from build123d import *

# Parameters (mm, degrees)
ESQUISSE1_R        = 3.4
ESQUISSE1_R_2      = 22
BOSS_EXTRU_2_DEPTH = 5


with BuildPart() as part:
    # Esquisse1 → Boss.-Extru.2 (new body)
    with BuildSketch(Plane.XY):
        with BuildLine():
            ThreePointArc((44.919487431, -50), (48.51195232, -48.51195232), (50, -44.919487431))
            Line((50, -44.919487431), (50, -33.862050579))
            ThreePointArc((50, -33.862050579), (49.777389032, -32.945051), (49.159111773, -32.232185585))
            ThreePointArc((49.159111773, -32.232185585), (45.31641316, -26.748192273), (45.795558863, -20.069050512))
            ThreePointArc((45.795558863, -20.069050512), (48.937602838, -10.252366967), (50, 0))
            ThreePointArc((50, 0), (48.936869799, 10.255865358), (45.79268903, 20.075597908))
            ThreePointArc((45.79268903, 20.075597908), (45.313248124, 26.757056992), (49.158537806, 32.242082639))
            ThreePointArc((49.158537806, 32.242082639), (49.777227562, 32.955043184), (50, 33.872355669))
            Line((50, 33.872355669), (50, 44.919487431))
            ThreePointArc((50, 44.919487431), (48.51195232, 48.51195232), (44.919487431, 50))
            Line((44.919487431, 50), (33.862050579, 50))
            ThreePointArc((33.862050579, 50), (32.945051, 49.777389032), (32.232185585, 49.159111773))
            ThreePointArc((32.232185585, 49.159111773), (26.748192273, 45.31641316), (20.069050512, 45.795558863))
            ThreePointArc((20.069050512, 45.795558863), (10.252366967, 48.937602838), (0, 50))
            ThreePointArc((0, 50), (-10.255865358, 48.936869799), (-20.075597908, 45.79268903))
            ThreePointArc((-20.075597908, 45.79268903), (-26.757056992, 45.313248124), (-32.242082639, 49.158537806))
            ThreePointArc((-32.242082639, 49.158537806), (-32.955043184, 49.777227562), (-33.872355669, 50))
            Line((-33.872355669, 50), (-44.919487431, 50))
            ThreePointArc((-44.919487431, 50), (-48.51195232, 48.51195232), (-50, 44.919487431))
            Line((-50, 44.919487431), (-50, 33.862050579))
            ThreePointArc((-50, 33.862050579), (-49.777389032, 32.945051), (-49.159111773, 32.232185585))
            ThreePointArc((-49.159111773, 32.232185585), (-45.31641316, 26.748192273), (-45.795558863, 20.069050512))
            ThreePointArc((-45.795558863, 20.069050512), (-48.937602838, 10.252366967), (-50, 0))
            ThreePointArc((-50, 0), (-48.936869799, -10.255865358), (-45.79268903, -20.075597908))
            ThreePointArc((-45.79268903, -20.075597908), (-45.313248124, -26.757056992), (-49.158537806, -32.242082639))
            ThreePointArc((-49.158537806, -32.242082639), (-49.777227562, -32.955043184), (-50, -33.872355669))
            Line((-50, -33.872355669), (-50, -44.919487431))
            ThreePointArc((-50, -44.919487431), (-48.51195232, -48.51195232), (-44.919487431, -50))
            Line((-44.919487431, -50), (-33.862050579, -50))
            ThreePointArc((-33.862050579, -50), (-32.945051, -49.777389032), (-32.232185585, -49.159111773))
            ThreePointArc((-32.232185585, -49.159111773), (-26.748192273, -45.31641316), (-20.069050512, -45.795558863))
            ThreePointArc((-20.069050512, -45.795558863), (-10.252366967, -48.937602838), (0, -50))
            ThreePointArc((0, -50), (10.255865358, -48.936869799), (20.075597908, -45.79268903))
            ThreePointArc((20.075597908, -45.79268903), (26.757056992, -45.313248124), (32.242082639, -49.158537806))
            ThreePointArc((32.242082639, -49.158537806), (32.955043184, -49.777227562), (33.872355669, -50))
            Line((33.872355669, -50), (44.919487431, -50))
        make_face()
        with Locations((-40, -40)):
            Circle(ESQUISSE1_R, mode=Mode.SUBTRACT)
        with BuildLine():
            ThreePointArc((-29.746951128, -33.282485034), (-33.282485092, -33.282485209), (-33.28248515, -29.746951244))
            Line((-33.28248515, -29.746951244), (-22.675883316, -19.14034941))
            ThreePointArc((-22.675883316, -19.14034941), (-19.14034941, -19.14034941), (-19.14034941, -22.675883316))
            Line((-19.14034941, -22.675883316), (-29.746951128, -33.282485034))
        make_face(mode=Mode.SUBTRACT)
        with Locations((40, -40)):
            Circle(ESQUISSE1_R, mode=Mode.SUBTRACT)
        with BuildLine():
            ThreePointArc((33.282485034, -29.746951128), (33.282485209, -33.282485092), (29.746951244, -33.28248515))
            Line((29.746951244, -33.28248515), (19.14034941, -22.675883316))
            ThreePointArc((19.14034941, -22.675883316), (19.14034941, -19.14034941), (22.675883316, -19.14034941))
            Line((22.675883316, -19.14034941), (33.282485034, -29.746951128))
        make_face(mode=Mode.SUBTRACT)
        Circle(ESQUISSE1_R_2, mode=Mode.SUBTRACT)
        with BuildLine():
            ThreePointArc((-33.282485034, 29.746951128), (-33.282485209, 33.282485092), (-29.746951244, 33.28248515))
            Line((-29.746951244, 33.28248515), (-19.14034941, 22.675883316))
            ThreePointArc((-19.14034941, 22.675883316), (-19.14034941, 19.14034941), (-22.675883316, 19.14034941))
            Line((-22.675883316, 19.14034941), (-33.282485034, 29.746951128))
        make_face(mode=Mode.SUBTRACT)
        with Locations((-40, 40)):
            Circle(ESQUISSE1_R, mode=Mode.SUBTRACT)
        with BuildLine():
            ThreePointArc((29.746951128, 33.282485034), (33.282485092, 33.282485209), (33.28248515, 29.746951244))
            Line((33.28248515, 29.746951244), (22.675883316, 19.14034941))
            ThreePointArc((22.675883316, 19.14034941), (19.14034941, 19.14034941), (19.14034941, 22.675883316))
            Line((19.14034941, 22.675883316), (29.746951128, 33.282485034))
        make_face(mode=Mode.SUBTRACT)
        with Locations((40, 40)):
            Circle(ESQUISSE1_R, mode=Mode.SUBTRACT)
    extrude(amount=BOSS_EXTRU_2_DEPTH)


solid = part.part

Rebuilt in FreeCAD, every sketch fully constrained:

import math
import FreeCAD as App
import Part
import Sketcher

doc = App.newDocument("Part")
body = doc.addObject("PartDesign::Body", "Body")

sketch1 = body.newObject("Sketcher::SketchObject", "Sketch")
sketch1.AttachmentSupport = (doc.getObject("XY_Plane"), [""])
sketch1.MapMode = "FlatFace"
sketch1.addGeometry([
    Part.ArcOfCircle(Part.Circle(App.Vector(44.9, -44.9, 0), App.Vector(0, 0, 1), 5.1), math.radians(-90), math.radians(0)),
    Part.LineSegment(App.Vector(50, -44.9, 0), App.Vector(50, -33.9, 0)),
    Part.ArcOfCircle(Part.Circle(App.Vector(48, -33.9, 0), App.Vector(0, 0, 1), 2), math.radians(0), math.radians(55)),
    Part.ArcOfCircle(Part.Circle(App.Vector(55, -24.1, 0), App.Vector(0, 0, 1), 10), math.radians(156), math.radians(235)),
    Part.ArcOfCircle(Part.Circle(App.Vector(0, 0, 0), App.Vector(0, 0, 1), 50), math.radians(-24), math.radians(0)),
    Part.ArcOfCircle(Part.Circle(App.Vector(0, 0, 0), App.Vector(0, 0, 1), 50), math.radians(0), math.radians(24)),
    Part.ArcOfCircle(Part.Circle(App.Vector(55, 24.1, 0), App.Vector(0, 0, 1), 10), math.radians(125), math.radians(204)),
    Part.ArcOfCircle(Part.Circle(App.Vector(48, 33.9, 0), App.Vector(0, 0, 1), 2), math.radians(-55), math.radians(0)),
    Part.LineSegment(App.Vector(50, 33.9, 0), App.Vector(50, 44.9, 0)),
    Part.ArcOfCircle(Part.Circle(App.Vector(44.9, 44.9, 0), App.Vector(0, 0, 1), 5.1), math.radians(0), math.radians(90)),
    Part.LineSegment(App.Vector(44.9, 50, 0), App.Vector(33.9, 50, 0)),
    Part.ArcOfCircle(Part.Circle(App.Vector(33.9, 48, 0), App.Vector(0, 0, 1), 2), math.radians(90), math.radians(145)),
    Part.ArcOfCircle(Part.Circle(App.Vector(24.1, 55, 0), App.Vector(0, 0, 1), 10), math.radians(-114), math.radians(-35)),
    Part.ArcOfCircle(Part.Circle(App.Vector(0, 0, 0), App.Vector(0, 0, 1), 50), math.radians(66), math.radians(90)),
    Part.ArcOfCircle(Part.Circle(App.Vector(0, 0, 0), App.Vector(0, 0, 1), 50), math.radians(90), math.radians(114)),
    Part.ArcOfCircle(Part.Circle(App.Vector(-24.1, 55, 0), App.Vector(0, 0, 1), 10), math.radians(-145), math.radians(-66)),
    Part.ArcOfCircle(Part.Circle(App.Vector(-33.9, 48, 0), App.Vector(0, 0, 1), 2), math.radians(35), math.radians(90)),
    Part.LineSegment(App.Vector(-33.9, 50, 0), App.Vector(-44.9, 50, 0)),
    Part.ArcOfCircle(Part.Circle(App.Vector(-44.9, 44.9, 0), App.Vector(0, 0, 1), 5.1), math.radians(90), math.radians(180)),
    Part.LineSegment(App.Vector(-50, 44.9, 0), App.Vector(-50, 33.9, 0)),
    Part.ArcOfCircle(Part.Circle(App.Vector(-48, 33.9, 0), App.Vector(0, 0, 1), 2), math.radians(-180), math.radians(-125)),
    Part.ArcOfCircle(Part.Circle(App.Vector(-55, 24.1, 0), App.Vector(0, 0, 1), 10), math.radians(-24), math.radians(55)),
    Part.ArcOfCircle(Part.Circle(App.Vector(0, 0, 0), App.Vector(0, 0, 1), 50), math.radians(156), math.radians(180)),
    Part.ArcOfCircle(Part.Circle(App.Vector(0, 0, 0), App.Vector(0, 0, 1), 50), math.radians(-180), math.radians(-156)),
    Part.ArcOfCircle(Part.Circle(App.Vector(-55, -24.1, 0), App.Vector(0, 0, 1), 10), math.radians(-55), math.radians(24)),
    Part.ArcOfCircle(Part.Circle(App.Vector(-48, -33.9, 0), App.Vector(0, 0, 1), 2), math.radians(125), math.radians(180)),
    Part.LineSegment(App.Vector(-50, -33.9, 0), App.Vector(-50, -44.9, 0)),
    Part.ArcOfCircle(Part.Circle(App.Vector(-44.9, -44.9, 0), App.Vector(0, 0, 1), 5.1), math.radians(-180), math.radians(-90)),
    Part.LineSegment(App.Vector(-44.9, -50, 0), App.Vector(-33.9, -50, 0)),
    Part.ArcOfCircle(Part.Circle(App.Vector(-33.9, -48, 0), App.Vector(0, 0, 1), 2), math.radians(-90), math.radians(-35)),
    Part.ArcOfCircle(Part.Circle(App.Vector(-24.1, -55, 0), App.Vector(0, 0, 1), 10), math.radians(66), math.radians(145)),
    Part.ArcOfCircle(Part.Circle(App.Vector(0, 0, 0), App.Vector(0, 0, 1), 50), math.radians(-114), math.radians(-90)),
    Part.ArcOfCircle(Part.Circle(App.Vector(0, 0, 0), App.Vector(0, 0, 1), 50), math.radians(-90), math.radians(-66)),
    Part.ArcOfCircle(Part.Circle(App.Vector(24.1, -55, 0), App.Vector(0, 0, 1), 10), math.radians(35), math.radians(114)),
    Part.ArcOfCircle(Part.Circle(App.Vector(33.9, -48, 0), App.Vector(0, 0, 1), 2), math.radians(-145), math.radians(-90)),
    Part.LineSegment(App.Vector(33.9, -50, 0), App.Vector(44.9, -50, 0)),
    Part.Circle(App.Vector(-40, -40, 0), App.Vector(0, 0, 1), 3.4),
    Part.LineSegment(App.Vector(-19.1, -22.7, 0), App.Vector(-29.7, -33.3, 0)),
    Part.ArcOfCircle(Part.Circle(App.Vector(-31.5, -31.5, 0), App.Vector(0, 0, 1), 2.5), math.radians(135), math.radians(315)),
    Part.LineSegment(App.Vector(-33.3, -29.7, 0), App.Vector(-22.7, -19.1, 0)),
    Part.ArcOfCircle(Part.Circle(App.Vector(-20.9, -20.9, 0), App.Vector(0, 0, 1), 2.5), math.radians(-45), math.radians(135)),
    Part.Circle(App.Vector(40, -40, 0), App.Vector(0, 0, 1), 3.4),
    Part.LineSegment(App.Vector(22.7, -19.1, 0), App.Vector(33.3, -29.7, 0)),
    Part.ArcOfCircle(Part.Circle(App.Vector(31.5, -31.5, 0), App.Vector(0, 0, 1), 2.5), math.radians(-135), math.radians(45)),
    Part.LineSegment(App.Vector(29.7, -33.3, 0), App.Vector(19.1, -22.7, 0)),
    Part.ArcOfCircle(Part.Circle(App.Vector(20.9, -20.9, 0), App.Vector(0, 0, 1), 2.5), math.radians(45), math.radians(225)),
    Part.Circle(App.Vector(0, 0, 0), App.Vector(0, 0, 1), 22),
    Part.LineSegment(App.Vector(-22.7, 19.1, 0), App.Vector(-33.3, 29.7, 0)),
    Part.ArcOfCircle(Part.Circle(App.Vector(-31.5, 31.5, 0), App.Vector(0, 0, 1), 2.5), math.radians(45), math.radians(225)),
    Part.LineSegment(App.Vector(-29.7, 33.3, 0), App.Vector(-19.1, 22.7, 0)),
    Part.ArcOfCircle(Part.Circle(App.Vector(-20.9, 20.9, 0), App.Vector(0, 0, 1), 2.5), math.radians(-135), math.radians(45)),
    Part.Circle(App.Vector(-40, 40, 0), App.Vector(0, 0, 1), 3.4),
    Part.LineSegment(App.Vector(19.1, 22.7, 0), App.Vector(29.7, 33.3, 0)),
    Part.ArcOfCircle(Part.Circle(App.Vector(31.5, 31.5, 0), App.Vector(0, 0, 1), 2.5), math.radians(-45), math.radians(135)),
    Part.LineSegment(App.Vector(33.3, 29.7, 0), App.Vector(22.7, 19.1, 0)),
    Part.ArcOfCircle(Part.Circle(App.Vector(20.9, 20.9, 0), App.Vector(0, 0, 1), 2.5), math.radians(135), math.radians(315)),
    Part.Circle(App.Vector(40, 40, 0), App.Vector(0, 0, 1), 3.4),
], False)
sketch1.addConstraint([
    Sketcher.Constraint("Tangent", 0, 2, 1, 1),
    Sketcher.Constraint("Tangent", 1, 2, 2, 1),
    Sketcher.Constraint("Tangent", 2, 2, 3, 2),
    Sketcher.Constraint("Tangent", 3, 1, 4, 1),
    Sketcher.Constraint("Tangent", 4, 2, 5, 1),
    Sketcher.Constraint("Tangent", 5, 2, 6, 2),
    Sketcher.Constraint("Tangent", 6, 1, 7, 1),
    Sketcher.Constraint("Tangent", 7, 2, 8, 1),
    Sketcher.Constraint("Tangent", 8, 2, 9, 1),
    Sketcher.Constraint("Tangent", 9, 2, 10, 1),
    Sketcher.Constraint("Tangent", 10, 2, 11, 1),
    Sketcher.Constraint("Tangent", 11, 2, 12, 2),
    Sketcher.Constraint("Tangent", 12, 1, 13, 1),
    Sketcher.Constraint("Tangent", 13, 2, 14, 1),
    Sketcher.Constraint("Tangent", 14, 2, 15, 2),
    Sketcher.Constraint("Tangent", 15, 1, 16, 1),
    Sketcher.Constraint("Tangent", 16, 2, 17, 1),
    Sketcher.Constraint("Tangent", 17, 2, 18, 1),
    Sketcher.Constraint("Tangent", 18, 2, 19, 1),
    Sketcher.Constraint("Tangent", 19, 2, 20, 1),
    Sketcher.Constraint("Tangent", 20, 2, 21, 2),
    Sketcher.Constraint("Tangent", 21, 1, 22, 1),
    Sketcher.Constraint("Tangent", 22, 2, 23, 1),
    Sketcher.Constraint("Tangent", 23, 2, 24, 2),
    Sketcher.Constraint("Tangent", 24, 1, 25, 1),
    Sketcher.Constraint("Tangent", 25, 2, 26, 1),
    Sketcher.Constraint("Tangent", 26, 2, 27, 1),
    Sketcher.Constraint("Tangent", 27, 2, 28, 1),
    Sketcher.Constraint("Tangent", 28, 2, 29, 1),
    Sketcher.Constraint("Tangent", 29, 2, 30, 2),
    Sketcher.Constraint("Tangent", 30, 1, 31, 1),
    Sketcher.Constraint("Tangent", 31, 2, 32, 1),
    Sketcher.Constraint("Tangent", 32, 2, 33, 2),
    Sketcher.Constraint("Tangent", 33, 1, 34, 1),
    Sketcher.Constraint("Tangent", 34, 2, 35, 1),
    Sketcher.Constraint("Tangent", 35, 2, 0, 1),
    Sketcher.Constraint("Tangent", 37, 2, 38, 2),
    Sketcher.Constraint("Tangent", 38, 1, 39, 1),
    Sketcher.Constraint("Tangent", 39, 2, 40, 2),
    Sketcher.Constraint("Tangent", 40, 1, 37, 1),
    Sketcher.Constraint("Tangent", 42, 2, 43, 2),
    Sketcher.Constraint("Tangent", 43, 1, 44, 1),
    Sketcher.Constraint("Tangent", 44, 2, 45, 2),
    Sketcher.Constraint("Tangent", 45, 1, 42, 1),
    Sketcher.Constraint("Tangent", 47, 2, 48, 2),
    Sketcher.Constraint("Tangent", 48, 1, 49, 1),
    Sketcher.Constraint("Tangent", 49, 2, 50, 2),
    Sketcher.Constraint("Tangent", 50, 1, 47, 1),
    Sketcher.Constraint("Tangent", 52, 2, 53, 2),
    Sketcher.Constraint("Tangent", 53, 1, 54, 1),
    Sketcher.Constraint("Tangent", 54, 2, 55, 2),
    Sketcher.Constraint("Tangent", 55, 1, 52, 1),
    Sketcher.Constraint("Vertical", 1),
    Sketcher.Constraint("Vertical", 8),
    Sketcher.Constraint("Horizontal", 10),
    Sketcher.Constraint("Horizontal", 17),
    Sketcher.Constraint("Vertical", 19),
    Sketcher.Constraint("Vertical", 26),
    Sketcher.Constraint("Horizontal", 28),
    Sketcher.Constraint("Horizontal", 35),
    Sketcher.Constraint("Coincident", 4, 3, -1, 1),
    Sketcher.Constraint("Coincident", 13, 3, -1, 1),
    Sketcher.Constraint("Coincident", 22, 3, -1, 1),
    Sketcher.Constraint("Coincident", 31, 3, -1, 1),
    Sketcher.Constraint("Coincident", 46, 3, -1, 1),
    Sketcher.Constraint("Equal", 4, 5),
    Sketcher.Constraint("Equal", 3, 6),
    Sketcher.Constraint("Equal", 2, 7),
    Sketcher.Constraint("Equal", 0, 9),
    Sketcher.Constraint("Equal", 7, 11),
    Sketcher.Constraint("Equal", 6, 12),
    Sketcher.Constraint("Equal", 5, 13),
    Sketcher.Constraint("Equal", 13, 14),
    Sketcher.Constraint("Equal", 12, 15),
    Sketcher.Constraint("Equal", 11, 16),
    Sketcher.Constraint("Equal", 9, 18),
    Sketcher.Constraint("Equal", 16, 20),
    Sketcher.Constraint("Equal", 15, 21),
    Sketcher.Constraint("Equal", 14, 22),
    Sketcher.Constraint("Equal", 22, 23),
    Sketcher.Constraint("Equal", 21, 24),
    Sketcher.Constraint("Equal", 20, 25),
    Sketcher.Constraint("Equal", 18, 27),
    Sketcher.Constraint("Equal", 25, 29),
    Sketcher.Constraint("Equal", 24, 30),
    Sketcher.Constraint("Equal", 23, 31),
    Sketcher.Constraint("Equal", 31, 32),
    Sketcher.Constraint("Equal", 30, 33),
    Sketcher.Constraint("Equal", 29, 34),
    Sketcher.Constraint("Equal", 38, 40),
    Sketcher.Constraint("Equal", 36, 41),
    Sketcher.Constraint("Equal", 40, 43),
    Sketcher.Constraint("Equal", 43, 45),
    Sketcher.Constraint("Equal", 45, 48),
    Sketcher.Constraint("Equal", 48, 50),
    Sketcher.Constraint("Equal", 41, 51),
    Sketcher.Constraint("Equal", 50, 53),
    Sketcher.Constraint("Equal", 53, 55),
    Sketcher.Constraint("Equal", 51, 56),
    Sketcher.Constraint("Symmetric", 0, 3, 18, 3, -1, 1),
    Sketcher.Constraint("Symmetric", 7, 3, 25, 3, -1, 1),
    Sketcher.Constraint("Symmetric", 11, 3, 29, 3, -1, 1),
    Sketcher.Constraint("Symmetric", 43, 3, 48, 3, -1, 1),
    Sketcher.Constraint("Symmetric", 45, 3, 50, 3, -1, 1),
    Sketcher.Constraint("Symmetric", 41, 3, 51, 3, -1, 1),
    Sketcher.Constraint("Symmetric", 38, 3, 53, 3, -1, 1),
    Sketcher.Constraint("Symmetric", 40, 3, 55, 3, -1, 1),
    Sketcher.Constraint("Symmetric", 36, 3, 56, 3, -1, 1),
    Sketcher.Constraint("Symmetric", 9, 3, 18, 3, -2),
    Sketcher.Constraint("Symmetric", 36, 3, 41, 3, -2),
    Sketcher.Constraint("Symmetric", 38, 3, 43, 3, -2),
    Sketcher.Constraint("Symmetric", 40, 3, 45, 3, -2),
    Sketcher.Constraint("PointOnObject", 4, 2, -1),
    Sketcher.Constraint("PointOnObject", 13, 2, -2),
    Sketcher.Constraint("PointOnObject", 22, 2, -1),
    Sketcher.Constraint("PointOnObject", 31, 2, -2),
    Sketcher.Constraint("Perpendicular", 39, 42),
    Sketcher.Constraint("Horizontal", 10, 2, 13, 2),
    Sketcher.Constraint("Vertical", 1, 2, 4, 2),
    Sketcher.Constraint("Equal", 17, 35),
    Sketcher.Constraint("Equal", 28, 1),
    Sketcher.Constraint("Equal", 35, 8),
    Sketcher.Constraint("Equal", 1, 19),
    Sketcher.Constraint("Diameter", 46, 44.0),
    Sketcher.Constraint("Radius", 2, 2.0),
    Sketcher.Constraint("Radius", 3, 10.0),
    Sketcher.Constraint("Radius", 4, 50.0),
    Sketcher.Constraint("Diameter", 36, 6.8),
    Sketcher.Constraint("Radius", 38, 2.5),
    Sketcher.Constraint("Distance", 37, 15.0),
    Sketcher.Constraint("DistanceX", 36, 3, -1, 1, 40.0),
    Sketcher.Constraint("DistanceY", 36, 3, -1, 1, 40.0),
    Sketcher.Constraint("Radius", 0, 5.080513),
    Sketcher.Constraint("DistanceX", 17, 2, 17, 1, 11.047132),
    Sketcher.Constraint("DistanceX", 10, 2, 10, 1, 11.057437),
    Sketcher.Constraint("DistanceX", 38, 3, -1, 1, 31.514718),
    Sketcher.Constraint("DistanceY", 38, 3, -1, 1, 31.514718),
])
pad1 = body.newObject("PartDesign::Pad", "Pad")
pad1.Profile = sketch1
pad1.Length = 5

doc.recompute()
